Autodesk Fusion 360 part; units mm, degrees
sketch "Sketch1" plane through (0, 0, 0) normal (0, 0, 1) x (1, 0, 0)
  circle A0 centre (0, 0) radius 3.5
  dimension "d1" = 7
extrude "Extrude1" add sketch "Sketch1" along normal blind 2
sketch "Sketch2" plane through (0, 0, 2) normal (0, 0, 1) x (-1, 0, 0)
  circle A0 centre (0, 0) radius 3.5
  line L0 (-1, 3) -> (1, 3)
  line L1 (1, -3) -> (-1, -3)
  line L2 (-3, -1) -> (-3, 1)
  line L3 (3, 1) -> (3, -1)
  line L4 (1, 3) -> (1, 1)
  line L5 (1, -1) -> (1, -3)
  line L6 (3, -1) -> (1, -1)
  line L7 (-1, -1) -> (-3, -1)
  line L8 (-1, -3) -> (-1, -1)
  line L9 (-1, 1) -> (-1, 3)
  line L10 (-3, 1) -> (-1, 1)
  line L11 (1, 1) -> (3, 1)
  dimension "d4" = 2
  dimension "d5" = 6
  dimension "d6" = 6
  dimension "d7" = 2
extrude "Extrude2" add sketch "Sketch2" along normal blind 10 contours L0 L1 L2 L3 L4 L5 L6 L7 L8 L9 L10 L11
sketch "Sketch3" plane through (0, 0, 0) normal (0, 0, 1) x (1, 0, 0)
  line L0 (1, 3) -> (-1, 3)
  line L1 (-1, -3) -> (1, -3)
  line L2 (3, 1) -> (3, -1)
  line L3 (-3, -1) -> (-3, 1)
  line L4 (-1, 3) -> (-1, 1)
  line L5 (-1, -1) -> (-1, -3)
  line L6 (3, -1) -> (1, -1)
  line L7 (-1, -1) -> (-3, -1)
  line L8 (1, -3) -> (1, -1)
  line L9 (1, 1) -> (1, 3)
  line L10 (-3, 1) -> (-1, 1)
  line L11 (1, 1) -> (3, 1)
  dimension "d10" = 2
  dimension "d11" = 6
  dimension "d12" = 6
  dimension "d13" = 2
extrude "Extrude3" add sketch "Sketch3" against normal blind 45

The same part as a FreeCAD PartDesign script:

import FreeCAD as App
import Part
import Sketcher
from FreeCAD import Vector
Q = App.Units.Quantity


def add_polygon(sketch, points):
    """Adds a closed chain of lines whose ends are joined by coincident constraints."""
    first, n = sketch.GeometryCount, len(points)
    for a, b in zip(points, points[1:] + points[:1]):
        sketch.addGeometry(Part.LineSegment(App.Vector(*a, 0), App.Vector(*b, 0)), False)
    for i in range(n):
        sketch.addConstraint(Sketcher.Constraint("Coincident", first + i, 2, first + (i + 1) % n, 1))

doc = App.newDocument("Part")
body = doc.addObject("PartDesign::Body", "Body")

# Sketch on XY plane
sketch1 = body.newObject("Sketcher::SketchObject", "Sketch")
sketch1.AttachmentSupport = (doc.getObject("XY_Plane"), [""])
sketch1.MapMode = "FlatFace"
sketch1.addGeometry(Part.Circle(Vector(0, 0, 0), Vector(0, 0, 1), 3.5), False)
sketch1.addConstraint(Sketcher.Constraint("Coincident", 0, 3, -1, 1))
sketch1.addConstraint(Sketcher.Constraint("Diameter", 0, Q("7 mm")))
pad1 = body.newObject("PartDesign::Pad", "Pad")
pad1.Profile = sketch1
pad1.Length = 2

# Sketch on XY plane
sketch2 = body.newObject("Sketcher::SketchObject", "Sketch001")
sketch2.AttachmentSupport = (doc.getObject("XY_Plane"), [""])
sketch2.MapMode = "FlatFace"
sketch2.AttachmentOffset = App.Placement(Vector(0, 0, 2), App.Rotation())
add_polygon(sketch2, [(-1, -3), (1, -3), (1, -1), (3, -1), (3, 1), (1, 1), (1, 3), (-1, 3), (-1, 1), (-3, 1), (-3, -1), (-1, -1)])  # lines 0-11
sketch2.addConstraint(Sketcher.Constraint("Horizontal", 0))
sketch2.addConstraint(Sketcher.Constraint("Vertical", 1))
sketch2.addConstraint(Sketcher.Constraint("Horizontal", 2))
sketch2.addConstraint(Sketcher.Constraint("Vertical", 3))
sketch2.addConstraint(Sketcher.Constraint("Horizontal", 4))
sketch2.addConstraint(Sketcher.Constraint("Vertical", 5))
sketch2.addConstraint(Sketcher.Constraint("Horizontal", 6))
sketch2.addConstraint(Sketcher.Constraint("Vertical", 7))
sketch2.addConstraint(Sketcher.Constraint("Horizontal", 8))
sketch2.addConstraint(Sketcher.Constraint("Vertical", 9))
sketch2.addConstraint(Sketcher.Constraint("Horizontal", 10))
sketch2.addConstraint(Sketcher.Constraint("Vertical", 11))
sketch2.addConstraint(Sketcher.Constraint("Symmetric", 0, 2, 6, 2, -1, 1))
sketch2.addConstraint(Sketcher.Constraint("Symmetric", 2, 2, 8, 2, -1, 1))
sketch2.addConstraint(Sketcher.Constraint("Symmetric", 4, 2, 10, 2, -1, 1))
sketch2.addConstraint(Sketcher.Constraint("Symmetric", 4, 2, 7, 2, -2))
sketch2.addConstraint(Sketcher.Constraint("Equal", 0, 2))
sketch2.addConstraint(Sketcher.Constraint("Equal", 10, 1))
sketch2.addConstraint(Sketcher.Constraint("Equal", 1, 3))
sketch2.addConstraint(Sketcher.Constraint("DistanceX", 0, 1, 0, 2, Q("2 mm")))
pad2 = body.newObject("PartDesign::Pad", "Pad001")
pad2.Profile = sketch2
pad2.Length = 10

# Sketch on XY plane
sketch3 = body.newObject("Sketcher::SketchObject", "Sketch002")
sketch3.AttachmentSupport = (doc.getObject("XY_Plane"), [""])
sketch3.MapMode = "FlatFace"
add_polygon(sketch3, [(1, 1), (1, 3), (-1, 3), (-1, 1), (-3, 1), (-3, -1), (-1, -1), (-1, -3), (1, -3), (1, -1), (3, -1), (3, 1)])  # lines 0-11
sketch3.addConstraint(Sketcher.Constraint("Vertical", 0))
sketch3.addConstraint(Sketcher.Constraint("Horizontal", 1))
sketch3.addConstraint(Sketcher.Constraint("Vertical", 2))
sketch3.addConstraint(Sketcher.Constraint("Horizontal", 3))
sketch3.addConstraint(Sketcher.Constraint("Vertical", 4))
sketch3.addConstraint(Sketcher.Constraint("Horizontal", 5))
sketch3.addConstraint(Sketcher.Constraint("Vertical", 6))
sketch3.addConstraint(Sketcher.Constraint("Horizontal", 7))
sketch3.addConstraint(Sketcher.Constraint("Vertical", 8))
sketch3.addConstraint(Sketcher.Constraint("Horizontal", 9))
sketch3.addConstraint(Sketcher.Constraint("Vertical", 10))
sketch3.addConstraint(Sketcher.Constraint("Horizontal", 11))
sketch3.addConstraint(Sketcher.Constraint("Symmetric", 0, 2, 6, 2, -1, 1))
sketch3.addConstraint(Sketcher.Constraint("Symmetric", 2, 2, 8, 2, -1, 1))
sketch3.addConstraint(Sketcher.Constraint("Symmetric", 4, 2, 10, 2, -1, 1))
sketch3.addConstraint(Sketcher.Constraint("Symmetric", 5, 2, 8, 2, -2))
sketch3.addConstraint(Sketcher.Constraint("Equal", 1, 3))
sketch3.addConstraint(Sketcher.Constraint("Equal", 11, 0))
sketch3.addConstraint(Sketcher.Constraint("Equal", 2, 4))
sketch3.addConstraint(Sketcher.Constraint("DistanceX", 1, 2, 1, 1, Q("2 mm")))
pad3 = body.newObject("PartDesign::Pad", "Pad002")
pad3.Profile = sketch3
pad3.Length = 45
pad3.Reversed = True

doc.recompute()
